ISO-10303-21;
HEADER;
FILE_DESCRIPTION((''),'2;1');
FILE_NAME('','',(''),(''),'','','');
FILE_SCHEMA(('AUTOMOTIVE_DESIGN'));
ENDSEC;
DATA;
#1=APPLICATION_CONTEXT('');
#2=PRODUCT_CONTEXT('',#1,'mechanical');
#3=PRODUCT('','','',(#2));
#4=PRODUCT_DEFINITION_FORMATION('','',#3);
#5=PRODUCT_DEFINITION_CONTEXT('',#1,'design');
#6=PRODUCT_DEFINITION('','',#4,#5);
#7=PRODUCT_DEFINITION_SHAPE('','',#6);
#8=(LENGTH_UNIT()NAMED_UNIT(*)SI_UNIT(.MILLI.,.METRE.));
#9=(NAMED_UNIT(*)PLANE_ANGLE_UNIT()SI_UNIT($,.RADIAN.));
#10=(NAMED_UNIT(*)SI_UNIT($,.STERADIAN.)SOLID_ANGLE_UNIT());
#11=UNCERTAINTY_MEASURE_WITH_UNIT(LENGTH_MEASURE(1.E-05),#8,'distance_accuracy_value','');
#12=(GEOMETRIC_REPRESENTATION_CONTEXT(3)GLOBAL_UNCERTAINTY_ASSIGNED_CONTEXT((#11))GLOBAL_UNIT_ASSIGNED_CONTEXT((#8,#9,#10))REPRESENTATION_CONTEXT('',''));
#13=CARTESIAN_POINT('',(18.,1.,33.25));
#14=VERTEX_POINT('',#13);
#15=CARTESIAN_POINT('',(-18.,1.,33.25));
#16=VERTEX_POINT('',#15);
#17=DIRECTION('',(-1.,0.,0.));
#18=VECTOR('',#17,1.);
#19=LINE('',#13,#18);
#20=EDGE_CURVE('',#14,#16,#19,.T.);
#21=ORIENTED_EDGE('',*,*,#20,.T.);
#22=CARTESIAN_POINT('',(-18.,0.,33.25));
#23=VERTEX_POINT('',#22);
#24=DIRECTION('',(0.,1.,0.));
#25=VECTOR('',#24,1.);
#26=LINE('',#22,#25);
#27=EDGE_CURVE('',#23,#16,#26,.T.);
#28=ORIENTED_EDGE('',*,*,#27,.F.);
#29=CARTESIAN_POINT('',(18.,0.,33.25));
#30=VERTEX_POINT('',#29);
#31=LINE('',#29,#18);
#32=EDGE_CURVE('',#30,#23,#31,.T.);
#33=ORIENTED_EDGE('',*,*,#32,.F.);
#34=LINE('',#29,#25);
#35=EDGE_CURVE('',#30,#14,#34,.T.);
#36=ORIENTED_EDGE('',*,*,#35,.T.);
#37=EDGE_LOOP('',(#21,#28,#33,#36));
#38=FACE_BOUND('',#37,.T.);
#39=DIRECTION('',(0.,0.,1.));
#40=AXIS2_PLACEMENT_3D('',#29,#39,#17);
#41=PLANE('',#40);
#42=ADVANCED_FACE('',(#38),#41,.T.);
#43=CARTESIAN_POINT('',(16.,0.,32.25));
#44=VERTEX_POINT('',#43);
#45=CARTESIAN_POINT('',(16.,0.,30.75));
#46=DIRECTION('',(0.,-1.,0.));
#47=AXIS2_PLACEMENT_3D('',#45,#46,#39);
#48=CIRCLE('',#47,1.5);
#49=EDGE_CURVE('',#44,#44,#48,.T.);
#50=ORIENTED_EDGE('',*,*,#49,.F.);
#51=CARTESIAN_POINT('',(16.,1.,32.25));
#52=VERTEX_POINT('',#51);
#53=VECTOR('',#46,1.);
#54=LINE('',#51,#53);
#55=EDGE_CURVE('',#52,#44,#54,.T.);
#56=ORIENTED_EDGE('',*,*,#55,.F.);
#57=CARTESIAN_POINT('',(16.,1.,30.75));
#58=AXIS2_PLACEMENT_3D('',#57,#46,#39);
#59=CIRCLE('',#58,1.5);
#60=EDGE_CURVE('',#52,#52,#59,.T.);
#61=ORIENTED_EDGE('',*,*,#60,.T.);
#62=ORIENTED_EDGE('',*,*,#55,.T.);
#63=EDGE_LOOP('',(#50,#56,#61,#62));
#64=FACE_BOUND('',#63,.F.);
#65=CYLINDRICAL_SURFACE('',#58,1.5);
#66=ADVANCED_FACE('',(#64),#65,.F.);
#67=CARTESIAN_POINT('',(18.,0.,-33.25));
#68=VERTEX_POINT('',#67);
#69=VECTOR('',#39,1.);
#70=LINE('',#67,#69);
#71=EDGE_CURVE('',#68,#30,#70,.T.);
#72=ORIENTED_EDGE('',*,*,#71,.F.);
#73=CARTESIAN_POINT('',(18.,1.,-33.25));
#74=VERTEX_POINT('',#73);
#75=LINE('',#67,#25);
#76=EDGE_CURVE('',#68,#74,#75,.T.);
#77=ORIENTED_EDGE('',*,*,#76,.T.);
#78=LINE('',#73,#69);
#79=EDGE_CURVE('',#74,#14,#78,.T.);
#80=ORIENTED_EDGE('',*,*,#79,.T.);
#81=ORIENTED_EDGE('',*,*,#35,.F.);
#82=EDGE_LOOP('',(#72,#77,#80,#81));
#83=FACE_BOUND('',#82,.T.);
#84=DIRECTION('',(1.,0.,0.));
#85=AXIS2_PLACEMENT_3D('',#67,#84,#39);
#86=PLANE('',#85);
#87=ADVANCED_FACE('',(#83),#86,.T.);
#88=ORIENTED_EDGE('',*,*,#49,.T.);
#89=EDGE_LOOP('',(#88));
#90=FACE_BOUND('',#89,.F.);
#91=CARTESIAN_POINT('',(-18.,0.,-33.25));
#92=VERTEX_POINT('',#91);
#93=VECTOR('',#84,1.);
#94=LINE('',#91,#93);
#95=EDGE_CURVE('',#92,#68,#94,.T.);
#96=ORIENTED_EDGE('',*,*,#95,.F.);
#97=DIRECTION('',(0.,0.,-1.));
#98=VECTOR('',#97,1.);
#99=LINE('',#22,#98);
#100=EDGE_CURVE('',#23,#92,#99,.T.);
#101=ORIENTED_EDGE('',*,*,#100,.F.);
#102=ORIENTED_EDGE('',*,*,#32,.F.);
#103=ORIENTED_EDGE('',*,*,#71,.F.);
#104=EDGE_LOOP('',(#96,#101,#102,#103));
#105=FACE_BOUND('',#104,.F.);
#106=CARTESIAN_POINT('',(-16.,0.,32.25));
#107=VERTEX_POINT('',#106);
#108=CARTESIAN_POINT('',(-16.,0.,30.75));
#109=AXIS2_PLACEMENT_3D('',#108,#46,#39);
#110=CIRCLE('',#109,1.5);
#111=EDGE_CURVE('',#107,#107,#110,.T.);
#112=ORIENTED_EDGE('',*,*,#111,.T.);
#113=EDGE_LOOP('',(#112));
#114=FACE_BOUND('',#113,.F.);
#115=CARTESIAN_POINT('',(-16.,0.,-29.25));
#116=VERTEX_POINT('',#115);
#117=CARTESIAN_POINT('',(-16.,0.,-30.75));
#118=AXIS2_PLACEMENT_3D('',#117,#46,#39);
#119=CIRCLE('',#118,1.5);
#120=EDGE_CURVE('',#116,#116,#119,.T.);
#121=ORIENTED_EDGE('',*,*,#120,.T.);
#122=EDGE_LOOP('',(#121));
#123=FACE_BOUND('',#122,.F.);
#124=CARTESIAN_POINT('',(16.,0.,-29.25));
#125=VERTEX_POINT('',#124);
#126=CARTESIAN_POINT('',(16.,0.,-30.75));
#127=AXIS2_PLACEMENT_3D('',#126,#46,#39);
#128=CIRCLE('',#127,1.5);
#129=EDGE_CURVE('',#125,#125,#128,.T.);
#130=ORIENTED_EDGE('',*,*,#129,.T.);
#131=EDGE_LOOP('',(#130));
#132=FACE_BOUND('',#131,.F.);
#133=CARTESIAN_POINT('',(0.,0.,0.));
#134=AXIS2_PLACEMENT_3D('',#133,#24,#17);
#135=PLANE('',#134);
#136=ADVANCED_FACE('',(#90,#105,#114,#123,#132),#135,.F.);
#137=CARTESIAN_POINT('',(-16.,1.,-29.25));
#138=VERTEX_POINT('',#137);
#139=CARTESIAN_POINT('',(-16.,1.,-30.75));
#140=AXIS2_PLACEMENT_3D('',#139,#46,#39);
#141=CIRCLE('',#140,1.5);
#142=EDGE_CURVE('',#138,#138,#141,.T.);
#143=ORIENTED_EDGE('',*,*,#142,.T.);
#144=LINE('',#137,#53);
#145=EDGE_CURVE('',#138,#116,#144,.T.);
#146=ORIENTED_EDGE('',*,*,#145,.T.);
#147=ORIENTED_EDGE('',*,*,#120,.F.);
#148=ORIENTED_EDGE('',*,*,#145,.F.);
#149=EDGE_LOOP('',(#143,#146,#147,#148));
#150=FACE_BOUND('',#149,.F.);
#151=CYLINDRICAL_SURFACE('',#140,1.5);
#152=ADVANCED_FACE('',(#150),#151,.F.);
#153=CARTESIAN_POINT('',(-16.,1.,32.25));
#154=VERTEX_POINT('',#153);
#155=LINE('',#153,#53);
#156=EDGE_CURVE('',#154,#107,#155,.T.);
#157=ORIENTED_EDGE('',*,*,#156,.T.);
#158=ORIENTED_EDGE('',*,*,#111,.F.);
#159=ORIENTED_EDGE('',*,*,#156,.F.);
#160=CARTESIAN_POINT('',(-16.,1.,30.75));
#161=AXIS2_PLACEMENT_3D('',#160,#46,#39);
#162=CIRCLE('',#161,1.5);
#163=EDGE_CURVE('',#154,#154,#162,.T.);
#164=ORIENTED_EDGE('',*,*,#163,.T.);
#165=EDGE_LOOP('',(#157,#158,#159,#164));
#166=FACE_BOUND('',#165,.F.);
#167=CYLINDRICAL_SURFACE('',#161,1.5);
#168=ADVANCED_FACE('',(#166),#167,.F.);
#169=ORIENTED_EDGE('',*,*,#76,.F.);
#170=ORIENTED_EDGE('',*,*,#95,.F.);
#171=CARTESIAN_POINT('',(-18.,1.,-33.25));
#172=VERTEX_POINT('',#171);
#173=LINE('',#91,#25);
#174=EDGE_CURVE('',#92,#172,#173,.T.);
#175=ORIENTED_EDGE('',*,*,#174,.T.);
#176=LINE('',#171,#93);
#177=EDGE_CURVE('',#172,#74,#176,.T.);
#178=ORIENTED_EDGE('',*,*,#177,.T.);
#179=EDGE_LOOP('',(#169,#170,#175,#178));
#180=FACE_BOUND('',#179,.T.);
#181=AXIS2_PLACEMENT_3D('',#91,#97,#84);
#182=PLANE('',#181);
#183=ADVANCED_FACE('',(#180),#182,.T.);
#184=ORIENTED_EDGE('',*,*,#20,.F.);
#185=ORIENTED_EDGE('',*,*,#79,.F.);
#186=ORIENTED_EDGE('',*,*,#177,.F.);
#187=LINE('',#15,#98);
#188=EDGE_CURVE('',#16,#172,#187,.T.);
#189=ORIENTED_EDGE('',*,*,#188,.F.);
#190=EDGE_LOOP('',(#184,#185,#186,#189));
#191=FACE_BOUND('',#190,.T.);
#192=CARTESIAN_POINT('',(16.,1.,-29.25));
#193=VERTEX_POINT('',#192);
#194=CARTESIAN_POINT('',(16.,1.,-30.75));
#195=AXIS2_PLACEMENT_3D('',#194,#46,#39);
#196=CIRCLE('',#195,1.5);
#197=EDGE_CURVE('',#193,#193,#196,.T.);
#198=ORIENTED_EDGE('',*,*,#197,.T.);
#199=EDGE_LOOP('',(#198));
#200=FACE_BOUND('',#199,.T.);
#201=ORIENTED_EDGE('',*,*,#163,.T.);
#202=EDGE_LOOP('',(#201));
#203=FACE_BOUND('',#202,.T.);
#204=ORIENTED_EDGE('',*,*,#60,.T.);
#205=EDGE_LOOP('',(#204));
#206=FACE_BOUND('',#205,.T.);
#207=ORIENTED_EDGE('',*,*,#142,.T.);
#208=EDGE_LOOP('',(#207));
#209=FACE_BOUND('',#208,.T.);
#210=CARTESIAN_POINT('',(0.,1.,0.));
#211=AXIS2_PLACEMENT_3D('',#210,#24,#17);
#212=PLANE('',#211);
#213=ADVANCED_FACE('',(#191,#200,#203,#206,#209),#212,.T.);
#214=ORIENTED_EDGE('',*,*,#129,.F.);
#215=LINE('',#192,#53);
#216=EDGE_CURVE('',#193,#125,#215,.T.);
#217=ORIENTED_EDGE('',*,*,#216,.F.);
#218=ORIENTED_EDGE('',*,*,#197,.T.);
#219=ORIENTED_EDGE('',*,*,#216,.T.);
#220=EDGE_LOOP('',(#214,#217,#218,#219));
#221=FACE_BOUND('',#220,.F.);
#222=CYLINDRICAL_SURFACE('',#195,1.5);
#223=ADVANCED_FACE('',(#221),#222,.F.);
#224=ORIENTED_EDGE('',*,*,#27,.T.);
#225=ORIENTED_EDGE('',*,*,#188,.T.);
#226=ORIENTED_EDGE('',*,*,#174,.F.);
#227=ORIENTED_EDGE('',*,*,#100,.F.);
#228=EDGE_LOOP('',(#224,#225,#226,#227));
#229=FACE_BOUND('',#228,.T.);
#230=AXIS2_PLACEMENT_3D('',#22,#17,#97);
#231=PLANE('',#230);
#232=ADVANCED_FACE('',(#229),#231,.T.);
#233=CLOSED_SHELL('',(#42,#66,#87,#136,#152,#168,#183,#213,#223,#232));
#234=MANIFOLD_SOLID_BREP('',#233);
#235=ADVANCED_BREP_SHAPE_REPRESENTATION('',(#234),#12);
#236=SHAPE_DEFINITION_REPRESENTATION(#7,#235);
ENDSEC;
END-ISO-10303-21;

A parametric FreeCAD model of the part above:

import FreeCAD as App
import Part
import Sketcher
from FreeCAD import Vector

doc = App.newDocument("Part")
params = doc.addObject("Spreadsheet::Sheet", "Params")
for row, (alias, value) in enumerate([
    ("sketch1_width", "36 mm"),
    ("sketch1_height", "66.5 mm"),
    ("pad1_length", "1 mm"),
    ("sketch2_diameter", "3 mm"),
    ("hole_diameter", "3 mm"),
    ("hole_depth", "6 mm"),
], start=1):
    params.set(f"A{row}", alias)
    params.set(f"B{row}", "=" + value)
    params.setAlias(f"B{row}", alias)

body = doc.addObject("PartDesign::Body", "Body")

sketch1 = body.newObject("Sketcher::SketchObject", "Sketch")
sketch1.AttachmentSupport = (doc.getObject("XZ_Plane"), [""])
sketch1.MapMode = "FlatFace"
sketch1.addGeometry(Part.LineSegment(Vector(18, -33, 0), Vector(-18, -33, 0)), False)
sketch1.addGeometry(Part.LineSegment(Vector(-18, -33, 0), Vector(-18, 33, 0)), False)
sketch1.addGeometry(Part.LineSegment(Vector(-18, 33, 0), Vector(18, 33, 0)), False)
sketch1.addGeometry(Part.LineSegment(Vector(18, 33, 0), Vector(18, -33, 0)), False)
sketch1.addConstraint(Sketcher.Constraint("Coincident", 0, 2, 1, 1))
sketch1.addConstraint(Sketcher.Constraint("Coincident", 1, 2, 2, 1))
sketch1.addConstraint(Sketcher.Constraint("Coincident", 2, 2, 3, 1))
sketch1.addConstraint(Sketcher.Constraint("Coincident", 3, 2, 0, 1))
sketch1.addConstraint(Sketcher.Constraint("Horizontal", 0))
sketch1.addConstraint(Sketcher.Constraint("Vertical", 1))
sketch1.addConstraint(Sketcher.Constraint("Horizontal", 2))
sketch1.addConstraint(Sketcher.Constraint("Vertical", 3))
sketch1.addConstraint(Sketcher.Constraint("Symmetric", 0, 2, 2, 2, -1, 1))
sketch1.addConstraint(Sketcher.Constraint("DistanceX", 0, 2, 0, 1, 36.0))
sketch1.addConstraint(Sketcher.Constraint("DistanceY", 1, 1, 1, 2, 66.5))
sketch1.setExpression("Constraints[9]", "Params.sketch1_width")
sketch1.setExpression("Constraints[10]", "Params.sketch1_height")
pad1 = body.newObject("PartDesign::Pad", "Pad")
pad1.Profile = sketch1
pad1.setExpression("Length", "Params.pad1_length")
pad1.Reversed = True

sketch2 = body.newObject("Sketcher::SketchObject", "Sketch001")
sketch2.AttachmentSupport = (doc.getObject("XZ_Plane"), [""])
sketch2.MapMode = "FlatFace"
sketch2.AttachmentOffset = App.Placement(Vector(0, 0, -1), App.Rotation())
sketch2.addGeometry(Part.Circle(Vector(-16, 30.8, 0), Vector(0, 0, 1), 1.5), False)
sketch2.addGeometry(Part.Circle(Vector(16, 30.8, 0), Vector(0, 0, 1), 1.5), False)
sketch2.addGeometry(Part.Circle(Vector(16, -30.8, 0), Vector(0, 0, 1), 1.5), False)
sketch2.addGeometry(Part.Circle(Vector(-16, -30.8, 0), Vector(0, 0, 1), 1.5), False)
sketch2.addConstraint(Sketcher.Constraint("Equal", 0, 1))
sketch2.addConstraint(Sketcher.Constraint("Equal", 1, 2))
sketch2.addConstraint(Sketcher.Constraint("Equal", 2, 3))
sketch2.addConstraint(Sketcher.Constraint("Symmetric", 0, 3, 2, 3, -1, 1))
sketch2.addConstraint(Sketcher.Constraint("Symmetric", 1, 3, 3, 3, -1, 1))
sketch2.addConstraint(Sketcher.Constraint("Symmetric", 0, 3, 1, 3, -2))
sketch2.addConstraint(Sketcher.Constraint("Diameter", 0, 3.0))
sketch2.addConstraint(Sketcher.Constraint("DistanceX", 0, 3, -1, 1, 16.0))
sketch2.addConstraint(Sketcher.Constraint("DistanceY", 2, 3, 1, 3, 61.5))
sketch2.setExpression("Constraints[6]", "Params.sketch2_diameter")
doc.recompute()
hole = body.newObject("PartDesign::Hole", "Hole")
hole.Profile = sketch2
hole.ThreadType = "None"
hole.setExpression("Diameter", "Params.hole_diameter")
hole.DepthType = "Dimension"
hole.setExpression("Depth", "Params.hole_depth")
hole.DrillPoint = "Flat"
hole.Reversed = True

doc.recompute()
